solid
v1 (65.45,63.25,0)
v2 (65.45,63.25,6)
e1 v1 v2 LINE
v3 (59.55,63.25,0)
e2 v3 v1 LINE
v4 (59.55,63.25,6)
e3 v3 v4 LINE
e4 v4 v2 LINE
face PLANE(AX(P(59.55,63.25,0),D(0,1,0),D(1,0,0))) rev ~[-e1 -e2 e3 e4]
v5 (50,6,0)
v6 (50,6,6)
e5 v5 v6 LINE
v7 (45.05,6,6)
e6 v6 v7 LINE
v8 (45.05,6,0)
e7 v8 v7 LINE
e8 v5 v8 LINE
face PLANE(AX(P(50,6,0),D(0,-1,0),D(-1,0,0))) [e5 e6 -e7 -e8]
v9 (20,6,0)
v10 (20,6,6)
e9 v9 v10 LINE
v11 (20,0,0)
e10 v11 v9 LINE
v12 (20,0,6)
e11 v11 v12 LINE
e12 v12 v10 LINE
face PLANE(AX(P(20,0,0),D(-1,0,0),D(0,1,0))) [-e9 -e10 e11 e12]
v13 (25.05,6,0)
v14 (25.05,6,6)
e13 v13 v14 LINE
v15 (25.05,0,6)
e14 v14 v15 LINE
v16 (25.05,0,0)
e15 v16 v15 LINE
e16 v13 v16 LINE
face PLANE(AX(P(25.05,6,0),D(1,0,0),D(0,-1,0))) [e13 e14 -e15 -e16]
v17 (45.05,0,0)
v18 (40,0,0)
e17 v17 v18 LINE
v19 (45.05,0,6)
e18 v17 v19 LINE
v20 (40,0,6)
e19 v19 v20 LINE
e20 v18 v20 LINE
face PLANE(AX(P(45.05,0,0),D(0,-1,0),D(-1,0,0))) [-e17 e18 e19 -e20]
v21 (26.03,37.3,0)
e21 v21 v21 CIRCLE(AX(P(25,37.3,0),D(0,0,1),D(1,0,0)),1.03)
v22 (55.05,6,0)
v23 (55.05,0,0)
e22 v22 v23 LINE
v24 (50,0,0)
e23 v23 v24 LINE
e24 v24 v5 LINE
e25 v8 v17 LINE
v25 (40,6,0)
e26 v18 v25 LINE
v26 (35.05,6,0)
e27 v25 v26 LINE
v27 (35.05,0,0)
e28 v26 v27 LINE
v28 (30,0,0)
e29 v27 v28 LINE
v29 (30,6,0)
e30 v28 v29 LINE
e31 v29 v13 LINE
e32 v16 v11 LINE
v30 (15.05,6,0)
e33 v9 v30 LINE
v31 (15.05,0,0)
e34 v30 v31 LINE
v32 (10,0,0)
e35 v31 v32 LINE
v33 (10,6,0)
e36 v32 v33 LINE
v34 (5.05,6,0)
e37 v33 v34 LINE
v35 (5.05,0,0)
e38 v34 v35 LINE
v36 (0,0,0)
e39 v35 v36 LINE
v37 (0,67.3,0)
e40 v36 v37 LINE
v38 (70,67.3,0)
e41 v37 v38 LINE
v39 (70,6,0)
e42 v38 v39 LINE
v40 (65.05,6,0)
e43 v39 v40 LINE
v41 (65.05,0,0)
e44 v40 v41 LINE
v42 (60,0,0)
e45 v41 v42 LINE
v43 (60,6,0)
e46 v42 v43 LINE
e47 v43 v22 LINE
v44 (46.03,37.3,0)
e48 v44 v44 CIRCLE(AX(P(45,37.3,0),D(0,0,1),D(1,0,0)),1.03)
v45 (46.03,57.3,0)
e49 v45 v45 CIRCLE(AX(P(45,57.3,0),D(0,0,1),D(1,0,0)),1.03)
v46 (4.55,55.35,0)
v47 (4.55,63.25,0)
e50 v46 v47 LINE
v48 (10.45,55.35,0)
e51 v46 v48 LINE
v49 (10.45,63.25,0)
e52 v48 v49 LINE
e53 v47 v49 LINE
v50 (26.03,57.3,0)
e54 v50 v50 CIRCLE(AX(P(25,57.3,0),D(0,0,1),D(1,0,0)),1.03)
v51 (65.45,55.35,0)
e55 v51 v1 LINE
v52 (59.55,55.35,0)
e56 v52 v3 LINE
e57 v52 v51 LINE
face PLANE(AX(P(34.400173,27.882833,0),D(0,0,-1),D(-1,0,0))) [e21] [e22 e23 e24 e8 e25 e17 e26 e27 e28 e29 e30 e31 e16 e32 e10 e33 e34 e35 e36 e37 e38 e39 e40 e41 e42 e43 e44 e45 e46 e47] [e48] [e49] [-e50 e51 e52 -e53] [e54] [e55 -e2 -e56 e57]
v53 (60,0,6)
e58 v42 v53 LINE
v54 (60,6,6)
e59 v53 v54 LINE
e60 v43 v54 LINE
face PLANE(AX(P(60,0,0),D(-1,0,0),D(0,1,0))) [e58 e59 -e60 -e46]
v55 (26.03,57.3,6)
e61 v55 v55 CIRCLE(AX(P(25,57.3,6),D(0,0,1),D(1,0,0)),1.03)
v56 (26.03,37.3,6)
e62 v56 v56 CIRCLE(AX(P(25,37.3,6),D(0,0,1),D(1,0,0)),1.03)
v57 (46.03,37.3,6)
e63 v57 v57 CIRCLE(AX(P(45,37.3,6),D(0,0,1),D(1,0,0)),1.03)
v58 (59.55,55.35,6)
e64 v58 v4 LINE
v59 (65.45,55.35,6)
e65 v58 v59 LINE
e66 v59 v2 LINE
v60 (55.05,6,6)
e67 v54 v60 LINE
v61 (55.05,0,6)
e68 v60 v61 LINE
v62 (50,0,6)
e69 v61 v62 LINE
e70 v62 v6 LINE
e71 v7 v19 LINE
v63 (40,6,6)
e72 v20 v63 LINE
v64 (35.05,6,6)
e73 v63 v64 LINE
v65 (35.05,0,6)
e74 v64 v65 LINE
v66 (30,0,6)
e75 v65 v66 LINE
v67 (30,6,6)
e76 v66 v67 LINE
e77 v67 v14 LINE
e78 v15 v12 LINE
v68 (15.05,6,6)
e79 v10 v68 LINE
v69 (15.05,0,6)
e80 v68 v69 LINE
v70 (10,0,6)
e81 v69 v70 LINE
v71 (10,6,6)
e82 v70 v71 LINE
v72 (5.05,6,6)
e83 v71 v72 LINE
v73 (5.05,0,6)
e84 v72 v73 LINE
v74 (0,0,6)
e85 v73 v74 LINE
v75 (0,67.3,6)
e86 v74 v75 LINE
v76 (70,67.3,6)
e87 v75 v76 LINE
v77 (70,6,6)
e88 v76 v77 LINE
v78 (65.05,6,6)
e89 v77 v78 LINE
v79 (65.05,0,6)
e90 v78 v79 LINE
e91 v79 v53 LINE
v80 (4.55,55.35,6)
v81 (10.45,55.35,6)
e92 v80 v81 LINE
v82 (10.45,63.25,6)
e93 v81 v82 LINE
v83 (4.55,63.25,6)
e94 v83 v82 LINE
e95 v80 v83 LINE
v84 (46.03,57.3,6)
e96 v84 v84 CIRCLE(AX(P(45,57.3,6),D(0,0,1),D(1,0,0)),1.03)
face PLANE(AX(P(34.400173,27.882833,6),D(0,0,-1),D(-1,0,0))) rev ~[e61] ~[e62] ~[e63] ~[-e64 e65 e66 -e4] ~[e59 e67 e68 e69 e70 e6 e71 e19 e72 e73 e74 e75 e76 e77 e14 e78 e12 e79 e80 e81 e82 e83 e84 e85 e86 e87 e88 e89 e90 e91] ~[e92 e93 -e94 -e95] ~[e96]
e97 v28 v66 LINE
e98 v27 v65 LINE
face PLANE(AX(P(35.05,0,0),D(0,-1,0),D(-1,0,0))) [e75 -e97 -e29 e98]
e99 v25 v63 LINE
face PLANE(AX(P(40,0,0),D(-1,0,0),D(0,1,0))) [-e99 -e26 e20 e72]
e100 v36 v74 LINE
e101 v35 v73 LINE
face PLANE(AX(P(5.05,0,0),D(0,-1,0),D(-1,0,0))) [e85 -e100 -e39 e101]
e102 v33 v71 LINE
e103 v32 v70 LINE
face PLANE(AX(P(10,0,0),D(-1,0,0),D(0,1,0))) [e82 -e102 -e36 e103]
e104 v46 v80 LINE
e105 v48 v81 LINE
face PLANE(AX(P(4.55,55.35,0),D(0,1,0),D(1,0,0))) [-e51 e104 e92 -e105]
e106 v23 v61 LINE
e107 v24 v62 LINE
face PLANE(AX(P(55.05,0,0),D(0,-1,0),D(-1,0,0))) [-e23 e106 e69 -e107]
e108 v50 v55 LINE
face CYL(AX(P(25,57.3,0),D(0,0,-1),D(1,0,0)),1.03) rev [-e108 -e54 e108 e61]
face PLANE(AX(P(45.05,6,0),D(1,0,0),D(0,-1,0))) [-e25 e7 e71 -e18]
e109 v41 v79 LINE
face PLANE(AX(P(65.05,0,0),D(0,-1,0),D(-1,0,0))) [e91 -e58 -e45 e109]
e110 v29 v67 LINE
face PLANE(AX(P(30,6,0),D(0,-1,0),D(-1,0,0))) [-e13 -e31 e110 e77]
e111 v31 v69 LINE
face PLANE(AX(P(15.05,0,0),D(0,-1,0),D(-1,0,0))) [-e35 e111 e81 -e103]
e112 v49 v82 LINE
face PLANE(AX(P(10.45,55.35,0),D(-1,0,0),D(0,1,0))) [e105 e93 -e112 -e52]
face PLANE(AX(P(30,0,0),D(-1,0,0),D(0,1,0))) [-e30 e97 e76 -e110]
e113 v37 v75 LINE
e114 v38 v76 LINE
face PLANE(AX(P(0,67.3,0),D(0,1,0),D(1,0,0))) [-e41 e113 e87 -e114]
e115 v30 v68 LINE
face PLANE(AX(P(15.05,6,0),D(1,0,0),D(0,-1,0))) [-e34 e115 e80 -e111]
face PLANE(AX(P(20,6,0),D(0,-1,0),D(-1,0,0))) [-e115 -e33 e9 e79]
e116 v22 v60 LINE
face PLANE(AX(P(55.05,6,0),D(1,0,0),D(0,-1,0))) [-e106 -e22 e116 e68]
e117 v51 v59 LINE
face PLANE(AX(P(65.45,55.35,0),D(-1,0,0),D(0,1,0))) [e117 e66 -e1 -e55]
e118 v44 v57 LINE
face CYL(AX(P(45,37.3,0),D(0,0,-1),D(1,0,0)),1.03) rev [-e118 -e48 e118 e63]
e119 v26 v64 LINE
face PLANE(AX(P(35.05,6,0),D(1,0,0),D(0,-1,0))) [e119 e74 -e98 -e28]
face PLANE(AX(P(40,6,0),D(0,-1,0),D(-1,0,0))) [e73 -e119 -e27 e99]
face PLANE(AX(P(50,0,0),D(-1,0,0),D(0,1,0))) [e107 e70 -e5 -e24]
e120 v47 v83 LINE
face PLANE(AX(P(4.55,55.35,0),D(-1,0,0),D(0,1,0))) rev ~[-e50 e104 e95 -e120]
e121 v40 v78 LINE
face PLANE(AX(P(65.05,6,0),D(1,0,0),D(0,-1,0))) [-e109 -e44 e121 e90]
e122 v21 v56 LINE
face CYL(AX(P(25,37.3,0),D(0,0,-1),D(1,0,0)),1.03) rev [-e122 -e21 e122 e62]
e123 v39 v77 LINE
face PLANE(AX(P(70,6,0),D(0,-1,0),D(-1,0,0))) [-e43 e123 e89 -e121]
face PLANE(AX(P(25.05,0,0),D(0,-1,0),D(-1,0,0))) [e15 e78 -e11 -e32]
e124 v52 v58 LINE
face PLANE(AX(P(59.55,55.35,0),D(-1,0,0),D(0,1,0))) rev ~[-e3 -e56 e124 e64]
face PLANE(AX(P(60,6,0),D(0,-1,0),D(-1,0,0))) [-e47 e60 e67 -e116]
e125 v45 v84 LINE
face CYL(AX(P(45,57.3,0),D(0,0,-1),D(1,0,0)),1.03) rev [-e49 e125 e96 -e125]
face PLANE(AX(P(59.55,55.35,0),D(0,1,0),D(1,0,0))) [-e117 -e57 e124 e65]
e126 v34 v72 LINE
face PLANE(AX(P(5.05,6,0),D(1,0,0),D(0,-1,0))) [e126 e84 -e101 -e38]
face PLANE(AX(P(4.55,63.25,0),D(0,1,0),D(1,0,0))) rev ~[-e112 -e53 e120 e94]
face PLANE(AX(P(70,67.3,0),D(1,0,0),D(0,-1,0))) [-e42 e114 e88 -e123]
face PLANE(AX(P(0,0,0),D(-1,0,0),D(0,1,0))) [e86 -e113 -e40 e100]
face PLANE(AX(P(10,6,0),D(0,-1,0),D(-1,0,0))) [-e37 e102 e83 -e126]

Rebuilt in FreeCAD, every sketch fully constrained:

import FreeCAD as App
import Part
import Sketcher


def add_polygon(sketch, points):
    """Adds a closed chain of lines whose ends are joined by coincident constraints."""
    first, n = sketch.GeometryCount, len(points)
    for a, b in zip(points, points[1:] + points[:1]):
        sketch.addGeometry(Part.LineSegment(App.Vector(*a, 0), App.Vector(*b, 0)), False)
    for i in range(n):
        sketch.addConstraint(Sketcher.Constraint("Coincident", first + i, 2, first + (i + 1) % n, 1))

doc = App.newDocument("Part")
body = doc.addObject("PartDesign::Body", "Body")

sketch1 = body.newObject("Sketcher::SketchObject", "Sketch")
sketch1.AttachmentSupport = (doc.getObject("XY_Plane"), [""])
sketch1.MapMode = "FlatFace"
add_polygon(sketch1, [(0, 67.3), (0, 0), (5, 0), (5, 6), (10, 6), (10, 0), (15.1, 0), (15.1, 6), (20, 6), (20, 0), (25.1, 0), (25.1, 6), (30, 6), (30, 0), (35, 0), (35, 6), (40, 6), (40, 0), (45, 0), (45, 6), (50, 6), (50, 0), (55, 0), (55, 6), (60, 6), (60, 0), (65, 0), (65, 6), (70, 6), (70, 67.3)])
sketch1.addGeometry(Part.Circle(App.Vector(45, 37.3, 0), App.Vector(0, 0, 1), 1), False)
sketch1.addGeometry(Part.Circle(App.Vector(25, 37.3, 0), App.Vector(0, 0, 1), 1), False)
add_polygon(sketch1, [(59.5, 55.4), (59.5, 63.2), (65.5, 63.2), (65.5, 55.4)])
sketch1.addGeometry(Part.Circle(App.Vector(45, 57.3, 0), App.Vector(0, 0, 1), 1), False)
sketch1.addGeometry(Part.Circle(App.Vector(25, 57.3, 0), App.Vector(0, 0, 1), 1), False)
add_polygon(sketch1, [(4.5, 55.4), (4.5, 63.2), (10.4, 63.2), (10.4, 55.4)])
sketch1.addConstraint(Sketcher.Constraint("Vertical", 0))
sketch1.addConstraint(Sketcher.Constraint("Horizontal", 1))
sketch1.addConstraint(Sketcher.Constraint("Vertical", 2))
sketch1.addConstraint(Sketcher.Constraint("Horizontal", 3))
sketch1.addConstraint(Sketcher.Constraint("Vertical", 4))
sketch1.addConstraint(Sketcher.Constraint("Horizontal", 5))
sketch1.addConstraint(Sketcher.Constraint("Vertical", 6))
sketch1.addConstraint(Sketcher.Constraint("Horizontal", 7))
sketch1.addConstraint(Sketcher.Constraint("Vertical", 8))
sketch1.addConstraint(Sketcher.Constraint("Horizontal", 9))
sketch1.addConstraint(Sketcher.Constraint("Vertical", 10))
sketch1.addConstraint(Sketcher.Constraint("Horizontal", 11))
sketch1.addConstraint(Sketcher.Constraint("Vertical", 12))
sketch1.addConstraint(Sketcher.Constraint("Horizontal", 13))
sketch1.addConstraint(Sketcher.Constraint("Vertical", 14))
sketch1.addConstraint(Sketcher.Constraint("Horizontal", 15))
sketch1.addConstraint(Sketcher.Constraint("Vertical", 16))
sketch1.addConstraint(Sketcher.Constraint("Horizontal", 17))
sketch1.addConstraint(Sketcher.Constraint("Vertical", 18))
sketch1.addConstraint(Sketcher.Constraint("Horizontal", 19))
sketch1.addConstraint(Sketcher.Constraint("Vertical", 20))
sketch1.addConstraint(Sketcher.Constraint("Horizontal", 21))
sketch1.addConstraint(Sketcher.Constraint("Vertical", 22))
sketch1.addConstraint(Sketcher.Constraint("Horizontal", 23))
sketch1.addConstraint(Sketcher.Constraint("Vertical", 24))
sketch1.addConstraint(Sketcher.Constraint("Horizontal", 25))
sketch1.addConstraint(Sketcher.Constraint("Vertical", 26))
sketch1.addConstraint(Sketcher.Constraint("Horizontal", 27))
sketch1.addConstraint(Sketcher.Constraint("Vertical", 28))
sketch1.addConstraint(Sketcher.Constraint("Horizontal", 29))
sketch1.addConstraint(Sketcher.Constraint("Vertical", 32))
sketch1.addConstraint(Sketcher.Constraint("Horizontal", 33))
sketch1.addConstraint(Sketcher.Constraint("Vertical", 34))
sketch1.addConstraint(Sketcher.Constraint("Horizontal", 35))
sketch1.addConstraint(Sketcher.Constraint("Vertical", 38))
sketch1.addConstraint(Sketcher.Constraint("Horizontal", 39))
sketch1.addConstraint(Sketcher.Constraint("Vertical", 40))
sketch1.addConstraint(Sketcher.Constraint("Horizontal", 41))
sketch1.addConstraint(Sketcher.Constraint("Coincident", 0, 2, -1, 1))
sketch1.addConstraint(Sketcher.Constraint("Equal", 30, 31))
sketch1.addConstraint(Sketcher.Constraint("Equal", 31, 36))
sketch1.addConstraint(Sketcher.Constraint("Equal", 36, 37))
sketch1.addConstraint(Sketcher.Constraint("PointOnObject", 4, 2, -1))
sketch1.addConstraint(Sketcher.Constraint("PointOnObject", 8, 2, -1))
sketch1.addConstraint(Sketcher.Constraint("PointOnObject", 12, 2, -1))
sketch1.addConstraint(Sketcher.Constraint("PointOnObject", 16, 2, -1))
sketch1.addConstraint(Sketcher.Constraint("PointOnObject", 20, 2, -1))
sketch1.addConstraint(Sketcher.Constraint("PointOnObject", 24, 2, -1))
sketch1.addConstraint(Sketcher.Constraint("Horizontal", 30, 3, 31, 3))
sketch1.addConstraint(Sketcher.Constraint("Horizontal", 36, 3, 37, 3))
sketch1.addConstraint(Sketcher.Constraint("Horizontal", 3, 2, 6, 2))
sketch1.addConstraint(Sketcher.Constraint("Horizontal", 7, 2, 10, 2))
sketch1.addConstraint(Sketcher.Constraint("Horizontal", 11, 2, 14, 2))
sketch1.addConstraint(Sketcher.Constraint("Horizontal", 15, 2, 18, 2))
sketch1.addConstraint(Sketcher.Constraint("Horizontal", 19, 2, 22, 2))
sketch1.addConstraint(Sketcher.Constraint("Horizontal", 23, 2, 26, 2))
sketch1.addConstraint(Sketcher.Constraint("Horizontal", 33, 2, 38, 2))
sketch1.addConstraint(Sketcher.Constraint("Horizontal", 35, 2, 40, 2))
sketch1.addConstraint(Sketcher.Constraint("Vertical", 30, 3, 36, 3))
sketch1.addConstraint(Sketcher.Constraint("Vertical", 31, 3, 37, 3))
sketch1.addConstraint(Sketcher.Constraint("Equal", 1, 5))
sketch1.addConstraint(Sketcher.Constraint("Equal", 3, 7))
sketch1.addConstraint(Sketcher.Constraint("Equal", 5, 9))
sketch1.addConstraint(Sketcher.Constraint("Equal", 7, 11))
sketch1.addConstraint(Sketcher.Constraint("Equal", 9, 13))
sketch1.addConstraint(Sketcher.Constraint("Equal", 11, 15))
sketch1.addConstraint(Sketcher.Constraint("Equal", 13, 17))
sketch1.addConstraint(Sketcher.Constraint("Equal", 15, 19))
sketch1.addConstraint(Sketcher.Constraint("Equal", 17, 21))
sketch1.addConstraint(Sketcher.Constraint("Equal", 19, 23))
sketch1.addConstraint(Sketcher.Constraint("Equal", 21, 25))
sketch1.addConstraint(Sketcher.Constraint("Equal", 23, 27))
sketch1.addConstraint(Sketcher.Constraint("Equal", 35, 39))
sketch1.addConstraint(Sketcher.Constraint("Diameter", 30, 2.06))
sketch1.addConstraint(Sketcher.Constraint("DistanceX", 29, 2, 29, 1, 70.0))
sketch1.addConstraint(Sketcher.Constraint("DistanceY", 2, 1, 2, 2, 6.0))
sketch1.addConstraint(Sketcher.Constraint("DistanceX", 33, 1, 33, 2, 5.9))
sketch1.addConstraint(Sketcher.Constraint("DistanceY", 0, 2, 0, 1, 67.3))
sketch1.addConstraint(Sketcher.Constraint("DistanceY", 32, 1, 32, 2, 7.9))
sketch1.addConstraint(Sketcher.Constraint("DistanceX", -1, 1, 30, 3, 45.0))
sketch1.addConstraint(Sketcher.Constraint("DistanceX", -1, 1, 31, 3, 25.0))
sketch1.addConstraint(Sketcher.Constraint("DistanceY", 30, 3, 36, 3, 20.0))
sketch1.addConstraint(Sketcher.Constraint("DistanceY", 36, 3, 28, 2, 10.0))
sketch1.addConstraint(Sketcher.Constraint("DistanceX", 1, 1, 1, 2, 5.05))
sketch1.addConstraint(Sketcher.Constraint("DistanceX", -1, 1, 32, 2, 59.55))
sketch1.addConstraint(Sketcher.Constraint("DistanceY", -1, 1, 32, 2, 63.25))
sketch1.addConstraint(Sketcher.Constraint("DistanceX", -1, 1, 38, 2, 4.55))
pad1 = body.newObject("PartDesign::Pad", "Pad")
pad1.Profile = sketch1
pad1.Length = 6

doc.recompute()
